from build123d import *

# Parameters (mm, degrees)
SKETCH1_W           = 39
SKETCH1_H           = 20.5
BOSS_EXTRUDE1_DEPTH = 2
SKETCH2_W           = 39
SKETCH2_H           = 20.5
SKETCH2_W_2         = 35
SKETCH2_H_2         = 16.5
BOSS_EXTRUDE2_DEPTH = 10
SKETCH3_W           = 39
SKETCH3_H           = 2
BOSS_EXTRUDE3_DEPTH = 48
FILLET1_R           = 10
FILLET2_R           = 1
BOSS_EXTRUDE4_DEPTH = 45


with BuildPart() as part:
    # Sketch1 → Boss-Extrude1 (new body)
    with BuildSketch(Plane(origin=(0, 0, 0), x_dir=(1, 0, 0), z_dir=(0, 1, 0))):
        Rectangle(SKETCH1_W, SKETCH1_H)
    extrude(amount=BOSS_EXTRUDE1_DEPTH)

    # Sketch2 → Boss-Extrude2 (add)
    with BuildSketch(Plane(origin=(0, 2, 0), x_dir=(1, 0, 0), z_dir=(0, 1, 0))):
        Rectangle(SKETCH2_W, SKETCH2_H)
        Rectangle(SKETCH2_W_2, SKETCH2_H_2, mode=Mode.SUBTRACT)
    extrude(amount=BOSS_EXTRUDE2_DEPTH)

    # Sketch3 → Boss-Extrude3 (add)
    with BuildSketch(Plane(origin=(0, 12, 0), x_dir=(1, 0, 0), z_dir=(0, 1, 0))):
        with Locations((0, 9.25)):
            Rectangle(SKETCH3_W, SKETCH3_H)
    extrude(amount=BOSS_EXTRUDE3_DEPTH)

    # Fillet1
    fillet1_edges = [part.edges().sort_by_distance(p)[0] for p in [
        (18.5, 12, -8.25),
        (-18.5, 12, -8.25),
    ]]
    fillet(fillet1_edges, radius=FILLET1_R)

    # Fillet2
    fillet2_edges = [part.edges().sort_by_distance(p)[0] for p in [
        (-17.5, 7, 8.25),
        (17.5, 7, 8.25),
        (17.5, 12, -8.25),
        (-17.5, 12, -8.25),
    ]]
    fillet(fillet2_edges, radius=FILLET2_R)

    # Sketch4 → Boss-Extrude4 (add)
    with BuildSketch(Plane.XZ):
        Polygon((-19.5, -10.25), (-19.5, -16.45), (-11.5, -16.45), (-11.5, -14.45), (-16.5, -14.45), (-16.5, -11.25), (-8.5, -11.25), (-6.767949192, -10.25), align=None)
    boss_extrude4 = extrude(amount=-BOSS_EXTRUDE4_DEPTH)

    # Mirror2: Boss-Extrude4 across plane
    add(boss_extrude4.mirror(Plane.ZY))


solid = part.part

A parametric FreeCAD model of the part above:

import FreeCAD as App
import Part
import Sketcher
Q = App.Units.Quantity


def edges_at(feature, points):
    """Names of the edges that pass closest to the given points."""
    edges = feature.Shape.Edges
    near = lambda p: min(range(len(edges)), key=lambda i: edges[i].distToShape(Part.Vertex(*p))[0])
    return sorted({f"Edge{near(p) + 1}" for p in points})

doc = App.newDocument("Part")
body = doc.addObject("PartDesign::Body", "Body")

sketch1 = body.newObject("Sketcher::SketchObject", "Sketch")
sketch1.AttachmentSupport = (doc.getObject("XZ_Plane"), [""])
sketch1.MapMode = "FlatFace"
sketch1.addGeometry([
    Part.LineSegment(App.Vector(-20, -10, 0), App.Vector(-20, 10, 0)),
    Part.LineSegment(App.Vector(-20, 10, 0), App.Vector(20, 10, 0)),
    Part.LineSegment(App.Vector(20, 10, 0), App.Vector(20, -10, 0)),
    Part.LineSegment(App.Vector(20, -10, 0), App.Vector(-20, -10, 0)),
], False)
sketch1.addConstraint([
    Sketcher.Constraint("Coincident", 0, 2, 1, 1),
    Sketcher.Constraint("Coincident", 1, 2, 2, 1),
    Sketcher.Constraint("Coincident", 2, 2, 3, 1),
    Sketcher.Constraint("Coincident", 3, 2, 0, 1),
    Sketcher.Constraint("Vertical", 0),
    Sketcher.Constraint("Horizontal", 1),
    Sketcher.Constraint("Vertical", 2),
    Sketcher.Constraint("Horizontal", 3),
    Sketcher.Constraint("Symmetric", 0, 2, 2, 2, -1, 1),
    Sketcher.Constraint("DistanceX", 1, 1, 1, 2, 39.0),
    Sketcher.Constraint("DistanceY", 0, 1, 0, 2, 20.5),
])
pad1 = body.newObject("PartDesign::Pad", "Pad")
pad1.Profile = sketch1
pad1.Length = 2
pad1.Reversed = True

sketch2 = body.newObject("Sketcher::SketchObject", "Sketch001")
sketch2.AttachmentSupport = (doc.getObject("XZ_Plane"), [""])
sketch2.MapMode = "FlatFace"
sketch2.AttachmentOffset = App.Placement(App.Vector(0, 0, -2), App.Rotation())
sketch2.addGeometry([
    Part.LineSegment(App.Vector(-20, -10, 0), App.Vector(-20, 10, 0)),
    Part.LineSegment(App.Vector(-20, 10, 0), App.Vector(20, 10, 0)),
    Part.LineSegment(App.Vector(20, 10, 0), App.Vector(20, -10, 0)),
    Part.LineSegment(App.Vector(20, -10, 0), App.Vector(-20, -10, 0)),
    Part.LineSegment(App.Vector(18, 8, 0), App.Vector(-18, 8, 0)),
    Part.LineSegment(App.Vector(-18, 8, 0), App.Vector(-18, -8, 0)),
    Part.LineSegment(App.Vector(-18, -8, 0), App.Vector(18, -8, 0)),
    Part.LineSegment(App.Vector(18, -8, 0), App.Vector(18, 8, 0)),
], False)
sketch2.addConstraint([
    Sketcher.Constraint("Coincident", 0, 2, 1, 1),
    Sketcher.Constraint("Coincident", 1, 2, 2, 1),
    Sketcher.Constraint("Coincident", 2, 2, 3, 1),
    Sketcher.Constraint("Coincident", 3, 2, 0, 1),
    Sketcher.Constraint("Coincident", 4, 2, 5, 1),
    Sketcher.Constraint("Coincident", 5, 2, 6, 1),
    Sketcher.Constraint("Coincident", 6, 2, 7, 1),
    Sketcher.Constraint("Coincident", 7, 2, 4, 1),
    Sketcher.Constraint("Vertical", 0),
    Sketcher.Constraint("Horizontal", 1),
    Sketcher.Constraint("Vertical", 2),
    Sketcher.Constraint("Horizontal", 3),
    Sketcher.Constraint("Horizontal", 4),
    Sketcher.Constraint("Vertical", 5),
    Sketcher.Constraint("Horizontal", 6),
    Sketcher.Constraint("Vertical", 7),
    Sketcher.Constraint("Symmetric", 0, 2, 2, 2, -1, 1),
    Sketcher.Constraint("Symmetric", 4, 2, 6, 2, -1, 1),
    Sketcher.Constraint("DistanceX", 1, 1, 1, 2, 39.0),
    Sketcher.Constraint("DistanceX", 4, 2, 4, 1, 35.0),
    Sketcher.Constraint("DistanceY", 0, 1, 0, 2, 20.5),
    Sketcher.Constraint("DistanceY", 5, 2, 5, 1, 16.5),
])
pad2 = body.newObject("PartDesign::Pad", "Pad001")
pad2.Profile = sketch2
pad2.Length = 10
pad2.Reversed = True

sketch3 = body.newObject("Sketcher::SketchObject", "Sketch002")
sketch3.AttachmentSupport = (doc.getObject("XZ_Plane"), [""])
sketch3.MapMode = "FlatFace"
sketch3.AttachmentOffset = App.Placement(App.Vector(0, 0, -12), App.Rotation())
sketch3.addGeometry([
    Part.LineSegment(App.Vector(-19.5, -10.2, 0), App.Vector(-19.5, -8.2, 0)),
    Part.LineSegment(App.Vector(-19.5, -8.2, 0), App.Vector(19.5, -8.2, 0)),
    Part.LineSegment(App.Vector(19.5, -8.2, 0), App.Vector(19.5, -10.2, 0)),
    Part.LineSegment(App.Vector(19.5, -10.2, 0), App.Vector(-19.5, -10.2, 0)),
], False)
sketch3.addConstraint([
    Sketcher.Constraint("Coincident", 0, 2, 1, 1),
    Sketcher.Constraint("Coincident", 1, 2, 2, 1),
    Sketcher.Constraint("Coincident", 2, 2, 3, 1),
    Sketcher.Constraint("Coincident", 3, 2, 0, 1),
    Sketcher.Constraint("Vertical", 0),
    Sketcher.Constraint("Horizontal", 1),
    Sketcher.Constraint("Vertical", 2),
    Sketcher.Constraint("Horizontal", 3),
    Sketcher.Constraint("DistanceX", 1, 1, 1, 2, 39.0),
    Sketcher.Constraint("DistanceY", 0, 1, 0, 2, 2.0),
    Sketcher.Constraint("DistanceX", 0, 2, -1, 1, 19.5),
    Sketcher.Constraint("DistanceY", 0, 2, -1, 1, 8.25),
])
pad3 = body.newObject("PartDesign::Pad", "Pad002")
pad3.Profile = sketch3
pad3.Length = 48
pad3.Reversed = True
doc.recompute()

fillet = body.newObject("PartDesign::Fillet", "Fillet")
fillet.Base = (pad3, edges_at(pad3, [(18.5, 12, -8.25), (-18.5, 12, -8.25)]))
fillet.Radius = 10
doc.recompute()

fillet2 = body.newObject("PartDesign::Fillet", "Fillet001")
fillet2.Base = (fillet, edges_at(fillet, [
    (-17.5, 7, 8.25),
    (17.5, 7, 8.25),
    (17.5, 12, -8.25),
    (-17.5, 12, -8.25),
]))
fillet2.Radius = 1

sketch4 = body.newObject("Sketcher::SketchObject", "Sketch003")
sketch4.AttachmentSupport = (doc.getObject("XZ_Plane"), [""])
sketch4.MapMode = "FlatFace"
sketch4.addGeometry([
    Part.LineSegment(App.Vector(-19.5, -10.2, 0), App.Vector(-19.5, -16.4, 0)),
    Part.LineSegment(App.Vector(-19.5, -16.4, 0), App.Vector(-11.5, -16.4, 0)),
    Part.LineSegment(App.Vector(-11.5, -16.4, 0), App.Vector(-11.5, -14.4, 0)),
    Part.LineSegment(App.Vector(-11.5, -14.4, 0), App.Vector(-16.5, -14.4, 0)),
    Part.LineSegment(App.Vector(-16.5, -14.4, 0), App.Vector(-16.5, -11.2, 0)),
    Part.LineSegment(App.Vector(-16.5, -11.2, 0), App.Vector(-8.5, -11.2, 0)),
    Part.LineSegment(App.Vector(-8.5, -11.2, 0), App.Vector(-6.8, -10.2, 0)),
    Part.LineSegment(App.Vector(-6.8, -10.2, 0), App.Vector(-19.5, -10.2, 0)),
], False)
sketch4.addConstraint([
    Sketcher.Constraint("Coincident", 0, 2, 1, 1),
    Sketcher.Constraint("Coincident", 1, 2, 2, 1),
    Sketcher.Constraint("Coincident", 2, 2, 3, 1),
    Sketcher.Constraint("Coincident", 3, 2, 4, 1),
    Sketcher.Constraint("Coincident", 4, 2, 5, 1),
    Sketcher.Constraint("Coincident", 5, 2, 6, 1),
    Sketcher.Constraint("Coincident", 6, 2, 7, 1),
    Sketcher.Constraint("Coincident", 7, 2, 0, 1),
    Sketcher.Constraint("Vertical", 0),
    Sketcher.Constraint("Horizontal", 1),
    Sketcher.Constraint("Vertical", 2),
    Sketcher.Constraint("Horizontal", 3),
    Sketcher.Constraint("Vertical", 4),
    Sketcher.Constraint("Horizontal", 5),
    Sketcher.Constraint("Horizontal", 7),
    Sketcher.Constraint("Equal", 1, 5),
    Sketcher.Constraint("DistanceX", 1, 1, 1, 2, 8.0),
    Sketcher.Constraint("DistanceX", 3, 2, 3, 1, 5.0),
    Sketcher.Constraint("DistanceY", 2, 1, 2, 2, 2.0),
    Sketcher.Constraint("Angle", 6, Q("30 deg")),
    Sketcher.Constraint("Distance", 6, 2.0),
    Sketcher.Constraint("DistanceY", 0, 2, 0, 1, 6.2),
    Sketcher.Constraint("DistanceX", 0, 2, -1, 1, 19.5),
    Sketcher.Constraint("DistanceY", 0, 2, -1, 1, 16.45),
])
pad4 = body.newObject("PartDesign::Pad", "Pad003")
pad4.Profile = sketch4
pad4.Length = 45
pad4.Reversed = True
doc.recompute()

mirrored = body.newObject("PartDesign::Mirrored", "Mirrored")
mirrored.Originals = [pad4]
mirrored.MirrorPlane = (doc.getObject("YZ_Plane"), [""])
body.Tip = mirrored

doc.recompute()
